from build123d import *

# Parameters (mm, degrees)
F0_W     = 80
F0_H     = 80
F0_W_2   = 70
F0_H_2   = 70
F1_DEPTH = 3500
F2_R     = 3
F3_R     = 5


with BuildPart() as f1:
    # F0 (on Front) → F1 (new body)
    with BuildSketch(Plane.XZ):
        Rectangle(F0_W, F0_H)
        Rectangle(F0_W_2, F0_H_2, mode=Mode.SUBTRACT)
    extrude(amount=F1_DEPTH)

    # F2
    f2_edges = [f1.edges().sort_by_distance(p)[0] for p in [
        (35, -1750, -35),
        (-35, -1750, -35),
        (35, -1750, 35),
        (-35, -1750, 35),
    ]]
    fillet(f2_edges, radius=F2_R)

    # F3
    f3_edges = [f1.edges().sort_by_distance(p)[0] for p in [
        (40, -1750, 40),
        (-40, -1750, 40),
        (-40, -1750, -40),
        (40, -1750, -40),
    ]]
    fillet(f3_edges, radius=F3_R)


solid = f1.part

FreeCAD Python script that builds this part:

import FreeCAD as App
import Part
import Sketcher
from FreeCAD import Vector
Q = App.Units.Quantity


def edges_at(feature, points):
    """Names of the edges that pass closest to the given points."""
    edges = feature.Shape.Edges
    near = lambda p: min(range(len(edges)), key=lambda i: edges[i].distToShape(Part.Vertex(*p))[0])
    return sorted({f"Edge{near(p) + 1}" for p in points})

doc = App.newDocument("Part")
body = doc.addObject("PartDesign::Body", "Body")

sketch1 = doc.addObject("Sketcher::SketchObject", "Sketch")
body.addObject(sketch1)
sketch1.AttachmentSupport = (doc.XZ_Plane, [""])
sketch1.MapMode = "FlatFace"
sketch1.addGeometry(Part.LineSegment(Vector(-40, 40, 0), Vector(-40, -40, 0)), False)
sketch1.addGeometry(Part.LineSegment(Vector(-40, -40, 0), Vector(40, -40, 0)), False)
sketch1.addGeometry(Part.LineSegment(Vector(40, -40, 0), Vector(40, 40, 0)), False)
sketch1.addGeometry(Part.LineSegment(Vector(40, 40, 0), Vector(-40, 40, 0)), False)
sketch1.addGeometry(Part.LineSegment(Vector(35, -35, 0), Vector(-35, -35, 0)), False)
sketch1.addGeometry(Part.LineSegment(Vector(-35, -35, 0), Vector(-35, 35, 0)), False)
sketch1.addGeometry(Part.LineSegment(Vector(-35, 35, 0), Vector(35, 35, 0)), False)
sketch1.addGeometry(Part.LineSegment(Vector(35, 35, 0), Vector(35, -35, 0)), False)
sketch1.addConstraint(Sketcher.Constraint("Coincident", 0, 2, 1, 1))
sketch1.addConstraint(Sketcher.Constraint("Coincident", 1, 2, 2, 1))
sketch1.addConstraint(Sketcher.Constraint("Coincident", 2, 2, 3, 1))
sketch1.addConstraint(Sketcher.Constraint("Coincident", 3, 2, 0, 1))
sketch1.addConstraint(Sketcher.Constraint("Coincident", 4, 2, 5, 1))
sketch1.addConstraint(Sketcher.Constraint("Coincident", 5, 2, 6, 1))
sketch1.addConstraint(Sketcher.Constraint("Coincident", 6, 2, 7, 1))
sketch1.addConstraint(Sketcher.Constraint("Coincident", 7, 2, 4, 1))
sketch1.addConstraint(Sketcher.Constraint("Vertical", 0))
sketch1.addConstraint(Sketcher.Constraint("Horizontal", 1))
sketch1.addConstraint(Sketcher.Constraint("Vertical", 2))
sketch1.addConstraint(Sketcher.Constraint("Horizontal", 3))
sketch1.addConstraint(Sketcher.Constraint("Horizontal", 4))
sketch1.addConstraint(Sketcher.Constraint("Vertical", 5))
sketch1.addConstraint(Sketcher.Constraint("Horizontal", 6))
sketch1.addConstraint(Sketcher.Constraint("Vertical", 7))
sketch1.addConstraint(Sketcher.Constraint("Symmetric", 0, 2, 2, 2, -1, 1))
sketch1.addConstraint(Sketcher.Constraint("Symmetric", 4, 2, 6, 2, -1, 1))
sketch1.addConstraint(Sketcher.Constraint("Equal", 3, 0))
sketch1.addConstraint(Sketcher.Constraint("Equal", 6, 5))
sketch1.addConstraint(Sketcher.Constraint("DistanceX", 1, 1, 1, 2, Q("80 mm")))
sketch1.addConstraint(Sketcher.Constraint("DistanceX", 4, 2, 4, 1, Q("70 mm")))
pad1 = doc.addObject("PartDesign::Pad", "Pad")
body.addObject(pad1)
pad1.Profile = sketch1
pad1.Length = 3500
doc.recompute()

fillet = doc.addObject("PartDesign::Fillet", "Fillet")
body.addObject(fillet)
fillet.Base = (pad1, edges_at(pad1, [
    (35, -1750, -35),
    (-35, -1750, -35),
    (35, -1750, 35),
    (-35, -1750, 35),
]))
fillet.Radius = 3
doc.recompute()

fillet2 = doc.addObject("PartDesign::Fillet", "Fillet001")
body.addObject(fillet2)
fillet2.Base = (fillet, edges_at(fillet, [
    (40, -1750, 40),
    (-40, -1750, 40),
    (-40, -1750, -40),
    (40, -1750, -40),
]))
fillet2.Radius = 5

doc.recompute()
